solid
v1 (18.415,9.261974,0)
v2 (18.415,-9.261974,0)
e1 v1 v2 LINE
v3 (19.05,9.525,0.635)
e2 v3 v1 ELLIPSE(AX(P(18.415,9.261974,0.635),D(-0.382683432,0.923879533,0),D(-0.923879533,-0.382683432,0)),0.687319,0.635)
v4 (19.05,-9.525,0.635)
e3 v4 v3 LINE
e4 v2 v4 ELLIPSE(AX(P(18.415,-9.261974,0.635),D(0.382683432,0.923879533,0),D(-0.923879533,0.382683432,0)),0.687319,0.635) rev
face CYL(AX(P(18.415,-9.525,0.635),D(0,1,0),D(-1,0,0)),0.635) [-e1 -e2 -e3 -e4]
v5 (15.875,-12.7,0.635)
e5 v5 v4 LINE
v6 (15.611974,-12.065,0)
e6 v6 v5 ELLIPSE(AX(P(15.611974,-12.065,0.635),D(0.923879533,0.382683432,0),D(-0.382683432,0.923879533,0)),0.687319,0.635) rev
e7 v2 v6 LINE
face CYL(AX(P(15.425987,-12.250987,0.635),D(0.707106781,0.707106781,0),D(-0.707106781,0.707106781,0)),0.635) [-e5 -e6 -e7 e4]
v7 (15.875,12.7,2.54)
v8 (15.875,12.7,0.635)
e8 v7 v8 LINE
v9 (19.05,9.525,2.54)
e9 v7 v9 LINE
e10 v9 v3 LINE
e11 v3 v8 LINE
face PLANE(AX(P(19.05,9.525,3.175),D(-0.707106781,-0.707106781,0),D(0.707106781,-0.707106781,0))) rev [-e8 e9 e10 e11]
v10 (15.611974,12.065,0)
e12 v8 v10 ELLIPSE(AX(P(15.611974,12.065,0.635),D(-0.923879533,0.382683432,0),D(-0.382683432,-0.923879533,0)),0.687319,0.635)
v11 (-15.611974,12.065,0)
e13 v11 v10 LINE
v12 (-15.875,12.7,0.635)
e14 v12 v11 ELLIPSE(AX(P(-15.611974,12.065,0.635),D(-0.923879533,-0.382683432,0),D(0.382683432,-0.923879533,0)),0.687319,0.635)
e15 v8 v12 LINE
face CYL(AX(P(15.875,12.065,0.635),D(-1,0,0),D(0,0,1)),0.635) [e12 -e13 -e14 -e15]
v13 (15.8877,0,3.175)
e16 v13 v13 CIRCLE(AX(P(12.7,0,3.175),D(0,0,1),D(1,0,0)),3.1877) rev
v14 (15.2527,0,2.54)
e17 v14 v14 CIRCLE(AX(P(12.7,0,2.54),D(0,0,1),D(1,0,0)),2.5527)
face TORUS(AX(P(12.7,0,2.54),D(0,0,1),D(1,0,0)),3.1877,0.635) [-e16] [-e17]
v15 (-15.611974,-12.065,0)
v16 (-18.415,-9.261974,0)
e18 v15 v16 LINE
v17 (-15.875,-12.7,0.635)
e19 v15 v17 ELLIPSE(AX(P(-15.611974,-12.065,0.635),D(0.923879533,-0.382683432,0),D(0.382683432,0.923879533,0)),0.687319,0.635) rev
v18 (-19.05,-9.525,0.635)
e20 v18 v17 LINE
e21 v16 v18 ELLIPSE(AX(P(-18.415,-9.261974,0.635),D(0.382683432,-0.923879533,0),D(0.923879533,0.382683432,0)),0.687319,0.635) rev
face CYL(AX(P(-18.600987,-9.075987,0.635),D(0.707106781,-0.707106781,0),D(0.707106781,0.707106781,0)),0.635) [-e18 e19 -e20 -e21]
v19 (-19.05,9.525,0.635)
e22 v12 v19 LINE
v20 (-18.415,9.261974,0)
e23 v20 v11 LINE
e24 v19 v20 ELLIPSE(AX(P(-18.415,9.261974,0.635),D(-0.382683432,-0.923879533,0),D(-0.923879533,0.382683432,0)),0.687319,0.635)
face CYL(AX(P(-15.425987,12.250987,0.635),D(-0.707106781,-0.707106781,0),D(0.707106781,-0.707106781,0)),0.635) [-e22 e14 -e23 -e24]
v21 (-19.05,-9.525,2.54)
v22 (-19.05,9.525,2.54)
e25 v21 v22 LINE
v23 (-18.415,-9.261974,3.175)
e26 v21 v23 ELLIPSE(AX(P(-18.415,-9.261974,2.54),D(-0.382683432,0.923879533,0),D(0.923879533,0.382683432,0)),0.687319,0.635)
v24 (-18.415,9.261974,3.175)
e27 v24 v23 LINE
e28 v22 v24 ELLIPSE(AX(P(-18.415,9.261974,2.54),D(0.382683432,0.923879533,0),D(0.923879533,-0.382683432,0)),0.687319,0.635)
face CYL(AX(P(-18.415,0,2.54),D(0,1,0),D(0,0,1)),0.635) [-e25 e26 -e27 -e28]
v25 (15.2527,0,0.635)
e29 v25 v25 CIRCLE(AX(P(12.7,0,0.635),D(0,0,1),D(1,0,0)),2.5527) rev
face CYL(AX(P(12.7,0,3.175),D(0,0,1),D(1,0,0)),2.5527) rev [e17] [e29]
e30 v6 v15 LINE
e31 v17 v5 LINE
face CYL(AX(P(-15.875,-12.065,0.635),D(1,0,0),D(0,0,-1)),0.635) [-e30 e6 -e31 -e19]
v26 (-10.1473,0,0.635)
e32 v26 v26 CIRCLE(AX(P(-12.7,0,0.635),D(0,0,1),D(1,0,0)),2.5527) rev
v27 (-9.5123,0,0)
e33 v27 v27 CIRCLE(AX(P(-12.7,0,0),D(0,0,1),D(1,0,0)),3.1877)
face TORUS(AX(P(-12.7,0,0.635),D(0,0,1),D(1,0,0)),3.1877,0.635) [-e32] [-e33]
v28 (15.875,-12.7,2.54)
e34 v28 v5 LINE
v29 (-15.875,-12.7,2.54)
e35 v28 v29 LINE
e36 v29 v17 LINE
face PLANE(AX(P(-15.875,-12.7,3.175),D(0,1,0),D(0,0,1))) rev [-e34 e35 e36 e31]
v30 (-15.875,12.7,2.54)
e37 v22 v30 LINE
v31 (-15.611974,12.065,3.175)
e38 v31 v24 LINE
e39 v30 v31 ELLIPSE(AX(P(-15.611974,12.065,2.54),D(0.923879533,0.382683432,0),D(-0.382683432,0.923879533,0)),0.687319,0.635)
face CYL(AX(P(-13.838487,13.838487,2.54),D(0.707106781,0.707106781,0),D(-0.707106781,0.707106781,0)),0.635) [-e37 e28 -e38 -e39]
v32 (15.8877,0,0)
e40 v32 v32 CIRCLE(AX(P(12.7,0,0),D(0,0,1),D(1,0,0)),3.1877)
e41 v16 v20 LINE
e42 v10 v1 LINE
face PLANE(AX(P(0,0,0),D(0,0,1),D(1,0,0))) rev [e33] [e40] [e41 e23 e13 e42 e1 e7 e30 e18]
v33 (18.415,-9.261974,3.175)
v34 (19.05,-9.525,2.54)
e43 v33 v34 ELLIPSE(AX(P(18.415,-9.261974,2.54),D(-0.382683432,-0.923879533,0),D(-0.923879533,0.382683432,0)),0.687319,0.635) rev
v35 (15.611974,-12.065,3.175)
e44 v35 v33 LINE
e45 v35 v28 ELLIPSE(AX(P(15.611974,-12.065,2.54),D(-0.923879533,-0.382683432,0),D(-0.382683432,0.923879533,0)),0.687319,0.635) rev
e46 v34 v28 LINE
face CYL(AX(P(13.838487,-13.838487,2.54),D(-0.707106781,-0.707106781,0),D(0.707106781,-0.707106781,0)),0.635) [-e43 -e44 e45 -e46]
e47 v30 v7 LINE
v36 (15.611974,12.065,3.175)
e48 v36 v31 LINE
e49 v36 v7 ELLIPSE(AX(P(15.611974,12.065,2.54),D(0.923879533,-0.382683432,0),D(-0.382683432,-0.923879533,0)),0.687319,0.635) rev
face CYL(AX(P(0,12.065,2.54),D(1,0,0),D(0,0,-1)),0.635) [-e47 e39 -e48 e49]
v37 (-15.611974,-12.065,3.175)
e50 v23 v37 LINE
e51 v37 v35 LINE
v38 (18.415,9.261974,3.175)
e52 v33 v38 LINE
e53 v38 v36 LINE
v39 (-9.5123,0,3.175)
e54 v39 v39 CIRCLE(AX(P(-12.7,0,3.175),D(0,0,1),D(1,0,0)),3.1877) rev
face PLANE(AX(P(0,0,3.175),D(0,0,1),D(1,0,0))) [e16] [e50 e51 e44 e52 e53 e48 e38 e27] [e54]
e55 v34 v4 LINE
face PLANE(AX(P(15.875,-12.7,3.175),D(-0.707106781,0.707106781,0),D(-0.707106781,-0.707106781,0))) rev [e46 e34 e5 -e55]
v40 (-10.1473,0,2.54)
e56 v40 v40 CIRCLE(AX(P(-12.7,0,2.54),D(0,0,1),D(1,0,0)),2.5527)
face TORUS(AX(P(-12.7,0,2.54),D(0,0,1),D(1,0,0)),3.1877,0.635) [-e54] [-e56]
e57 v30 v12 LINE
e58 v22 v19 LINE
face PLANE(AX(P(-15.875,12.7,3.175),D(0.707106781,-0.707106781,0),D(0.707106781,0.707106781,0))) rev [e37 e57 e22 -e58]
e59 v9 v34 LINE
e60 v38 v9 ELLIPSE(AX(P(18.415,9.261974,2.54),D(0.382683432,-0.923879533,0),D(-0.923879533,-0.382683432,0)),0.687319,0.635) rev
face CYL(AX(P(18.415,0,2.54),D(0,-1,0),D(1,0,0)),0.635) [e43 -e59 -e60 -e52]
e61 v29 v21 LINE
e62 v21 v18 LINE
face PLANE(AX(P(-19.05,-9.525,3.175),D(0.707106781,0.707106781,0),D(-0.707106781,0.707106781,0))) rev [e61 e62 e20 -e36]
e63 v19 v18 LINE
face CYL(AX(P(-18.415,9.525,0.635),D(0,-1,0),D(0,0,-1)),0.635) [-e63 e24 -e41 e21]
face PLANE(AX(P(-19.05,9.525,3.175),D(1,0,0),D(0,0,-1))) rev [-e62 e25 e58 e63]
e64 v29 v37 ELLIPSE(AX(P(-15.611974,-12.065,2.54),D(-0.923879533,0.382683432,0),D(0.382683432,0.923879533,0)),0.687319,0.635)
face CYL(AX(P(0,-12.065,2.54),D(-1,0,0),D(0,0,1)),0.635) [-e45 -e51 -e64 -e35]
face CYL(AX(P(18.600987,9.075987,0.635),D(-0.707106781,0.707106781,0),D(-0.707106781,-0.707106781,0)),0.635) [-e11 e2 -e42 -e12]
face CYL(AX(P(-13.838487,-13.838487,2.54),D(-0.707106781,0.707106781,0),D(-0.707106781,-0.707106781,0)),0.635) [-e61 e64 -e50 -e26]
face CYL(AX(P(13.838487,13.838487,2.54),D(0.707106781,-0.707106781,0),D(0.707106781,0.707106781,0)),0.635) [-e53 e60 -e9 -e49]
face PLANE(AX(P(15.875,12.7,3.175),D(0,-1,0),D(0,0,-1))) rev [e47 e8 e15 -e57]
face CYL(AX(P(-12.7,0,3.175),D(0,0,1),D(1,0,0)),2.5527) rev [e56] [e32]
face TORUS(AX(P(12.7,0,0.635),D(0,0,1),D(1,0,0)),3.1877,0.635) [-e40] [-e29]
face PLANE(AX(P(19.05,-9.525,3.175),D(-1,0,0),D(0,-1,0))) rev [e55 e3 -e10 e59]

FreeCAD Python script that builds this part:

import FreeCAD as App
import Part
import Sketcher
from FreeCAD import Vector
Q = App.Units.Quantity


def edges_at(feature, points):
    """Names of the edges that pass closest to the given points."""
    edges = feature.Shape.Edges
    near = lambda p: min(range(len(edges)), key=lambda i: edges[i].distToShape(Part.Vertex(*p))[0])
    return sorted({f"Edge{near(p) + 1}" for p in points})

doc = App.newDocument("Part")
body = doc.addObject("PartDesign::Body", "Body")

sketch1 = body.newObject("Sketcher::SketchObject", "Sketch")
sketch1.AttachmentSupport = (doc.getObject("XY_Plane"), [""])
sketch1.MapMode = "FlatFace"
sketch1.addGeometry(Part.LineSegment(Vector(15.9, 12.7, 0), Vector(-15.9, 12.7, 0)), False)
sketch1.addGeometry(Part.LineSegment(Vector(-15.9, 12.7, 0), Vector(-19.1, 9.5, 0)), False)
sketch1.addGeometry(Part.LineSegment(Vector(-19.1, 9.5, 0), Vector(-19.1, -9.5, 0)), False)
sketch1.addGeometry(Part.LineSegment(Vector(-19.1, -9.5, 0), Vector(-15.9, -12.7, 0)), False)
sketch1.addGeometry(Part.LineSegment(Vector(-15.9, -12.7, 0), Vector(15.9, -12.7, 0)), False)
sketch1.addGeometry(Part.LineSegment(Vector(15.9, -12.7, 0), Vector(19.1, -9.5, 0)), False)
sketch1.addGeometry(Part.LineSegment(Vector(19.1, -9.5, 0), Vector(19.1, 9.5, 0)), False)
sketch1.addGeometry(Part.LineSegment(Vector(19.1, 9.5, 0), Vector(15.9, 12.7, 0)), False)
sketch1.addConstraint(Sketcher.Constraint("Coincident", 0, 2, 1, 1))
sketch1.addConstraint(Sketcher.Constraint("Coincident", 1, 2, 2, 1))
sketch1.addConstraint(Sketcher.Constraint("Coincident", 2, 2, 3, 1))
sketch1.addConstraint(Sketcher.Constraint("Coincident", 3, 2, 4, 1))
sketch1.addConstraint(Sketcher.Constraint("Coincident", 4, 2, 5, 1))
sketch1.addConstraint(Sketcher.Constraint("Coincident", 5, 2, 6, 1))
sketch1.addConstraint(Sketcher.Constraint("Coincident", 6, 2, 7, 1))
sketch1.addConstraint(Sketcher.Constraint("Coincident", 7, 2, 0, 1))
sketch1.addConstraint(Sketcher.Constraint("Horizontal", 0))
sketch1.addConstraint(Sketcher.Constraint("Vertical", 2))
sketch1.addConstraint(Sketcher.Constraint("Horizontal", 4))
sketch1.addConstraint(Sketcher.Constraint("Vertical", 6))
sketch1.addConstraint(Sketcher.Constraint("Symmetric", 0, 2, 4, 2, -1, 1))
sketch1.addConstraint(Sketcher.Constraint("Symmetric", 1, 2, 5, 2, -1, 1))
sketch1.addConstraint(Sketcher.Constraint("Perpendicular", 1, 3))
sketch1.addConstraint(Sketcher.Constraint("Perpendicular", 5, 7))
sketch1.addConstraint(Sketcher.Constraint("Horizontal", 2, 2, 5, 2))
sketch1.addConstraint(Sketcher.Constraint("Horizontal", 1, 2, 6, 2))
sketch1.addConstraint(Sketcher.Constraint("Vertical", 0, 2, 3, 2))
sketch1.addConstraint(Sketcher.Constraint("DistanceY", 3, 2, 0, 2, Q("1 in")))
sketch1.addConstraint(Sketcher.Constraint("DistanceX", 0, 2, 0, 1, Q("1.25 in")))
sketch1.addConstraint(Sketcher.Constraint("DistanceY", 2, 2, 2, 1, Q("0.75 in")))
pad1 = body.newObject("PartDesign::Pad", "Pad")
pad1.Profile = sketch1
pad1.Length = Q("0.125 in")

sketch2 = body.newObject("Sketcher::SketchObject", "Sketch001")
sketch2.AttachmentSupport = (doc.getObject("XY_Plane"), [""])
sketch2.MapMode = "FlatFace"
sketch2.AttachmentOffset = App.Placement(Vector(0, 0, 0.125 * 25.4), App.Rotation())
sketch2.addGeometry(Part.Circle(Vector(12.7, 0, 0), Vector(0, 0, 1), 2.6), False)
sketch2.addGeometry(Part.Circle(Vector(-12.7, 0, 0), Vector(0, 0, 1), 2.6), False)
sketch2.addConstraint(Sketcher.Constraint("Equal", 0, 1))
sketch2.addConstraint(Sketcher.Constraint("Symmetric", 0, 3, 1, 3, -1, 1))
sketch2.addConstraint(Sketcher.Constraint("PointOnObject", 0, 3, -1))
sketch2.addConstraint(Sketcher.Constraint("Diameter", 0, Q("0.201 in")))
sketch2.addConstraint(Sketcher.Constraint("DistanceX", 1, 3, 0, 3, Q("1 in")))
doc.recompute()
hole = body.newObject("PartDesign::Hole", "Hole")
hole.Profile = sketch2
hole.ThreadType = "None"
hole.Diameter = Q("0.201 in")
hole.DepthType = "ThroughAll"
doc.recompute()

fillet = body.newObject("PartDesign::Fillet", "Fillet")
fillet.Base = (hole, edges_at(hole, [
    (-17.462, -11.113, 3.175),
    (-19.05, 0, 0),
    (-17.462, 11.113, 0),
    (0, -12.7, 3.175),
    (17.462, -11.113, 3.175),
    (19.05, 0, 3.175),
    (17.462, 11.113, 3.175),
    (0, 12.7, 3.175),
    (-10.147, 0, 3.175),
    (-10.147, 0, 0),
    (15.253, 0, 3.175),
    (15.253, 0, 0),
    (-17.462, 11.113, 3.175),
    (-19.05, 0, 3.175),
    (0, 12.7, 0),
    (17.462, 11.113, 0),
    (19.05, 0, 0),
    (17.462, -11.113, 0),
    (0, -12.7, 0),
    (-17.462, -11.113, 0),
]))
fillet.Radius = Q("0.025 in")

doc.recompute()
